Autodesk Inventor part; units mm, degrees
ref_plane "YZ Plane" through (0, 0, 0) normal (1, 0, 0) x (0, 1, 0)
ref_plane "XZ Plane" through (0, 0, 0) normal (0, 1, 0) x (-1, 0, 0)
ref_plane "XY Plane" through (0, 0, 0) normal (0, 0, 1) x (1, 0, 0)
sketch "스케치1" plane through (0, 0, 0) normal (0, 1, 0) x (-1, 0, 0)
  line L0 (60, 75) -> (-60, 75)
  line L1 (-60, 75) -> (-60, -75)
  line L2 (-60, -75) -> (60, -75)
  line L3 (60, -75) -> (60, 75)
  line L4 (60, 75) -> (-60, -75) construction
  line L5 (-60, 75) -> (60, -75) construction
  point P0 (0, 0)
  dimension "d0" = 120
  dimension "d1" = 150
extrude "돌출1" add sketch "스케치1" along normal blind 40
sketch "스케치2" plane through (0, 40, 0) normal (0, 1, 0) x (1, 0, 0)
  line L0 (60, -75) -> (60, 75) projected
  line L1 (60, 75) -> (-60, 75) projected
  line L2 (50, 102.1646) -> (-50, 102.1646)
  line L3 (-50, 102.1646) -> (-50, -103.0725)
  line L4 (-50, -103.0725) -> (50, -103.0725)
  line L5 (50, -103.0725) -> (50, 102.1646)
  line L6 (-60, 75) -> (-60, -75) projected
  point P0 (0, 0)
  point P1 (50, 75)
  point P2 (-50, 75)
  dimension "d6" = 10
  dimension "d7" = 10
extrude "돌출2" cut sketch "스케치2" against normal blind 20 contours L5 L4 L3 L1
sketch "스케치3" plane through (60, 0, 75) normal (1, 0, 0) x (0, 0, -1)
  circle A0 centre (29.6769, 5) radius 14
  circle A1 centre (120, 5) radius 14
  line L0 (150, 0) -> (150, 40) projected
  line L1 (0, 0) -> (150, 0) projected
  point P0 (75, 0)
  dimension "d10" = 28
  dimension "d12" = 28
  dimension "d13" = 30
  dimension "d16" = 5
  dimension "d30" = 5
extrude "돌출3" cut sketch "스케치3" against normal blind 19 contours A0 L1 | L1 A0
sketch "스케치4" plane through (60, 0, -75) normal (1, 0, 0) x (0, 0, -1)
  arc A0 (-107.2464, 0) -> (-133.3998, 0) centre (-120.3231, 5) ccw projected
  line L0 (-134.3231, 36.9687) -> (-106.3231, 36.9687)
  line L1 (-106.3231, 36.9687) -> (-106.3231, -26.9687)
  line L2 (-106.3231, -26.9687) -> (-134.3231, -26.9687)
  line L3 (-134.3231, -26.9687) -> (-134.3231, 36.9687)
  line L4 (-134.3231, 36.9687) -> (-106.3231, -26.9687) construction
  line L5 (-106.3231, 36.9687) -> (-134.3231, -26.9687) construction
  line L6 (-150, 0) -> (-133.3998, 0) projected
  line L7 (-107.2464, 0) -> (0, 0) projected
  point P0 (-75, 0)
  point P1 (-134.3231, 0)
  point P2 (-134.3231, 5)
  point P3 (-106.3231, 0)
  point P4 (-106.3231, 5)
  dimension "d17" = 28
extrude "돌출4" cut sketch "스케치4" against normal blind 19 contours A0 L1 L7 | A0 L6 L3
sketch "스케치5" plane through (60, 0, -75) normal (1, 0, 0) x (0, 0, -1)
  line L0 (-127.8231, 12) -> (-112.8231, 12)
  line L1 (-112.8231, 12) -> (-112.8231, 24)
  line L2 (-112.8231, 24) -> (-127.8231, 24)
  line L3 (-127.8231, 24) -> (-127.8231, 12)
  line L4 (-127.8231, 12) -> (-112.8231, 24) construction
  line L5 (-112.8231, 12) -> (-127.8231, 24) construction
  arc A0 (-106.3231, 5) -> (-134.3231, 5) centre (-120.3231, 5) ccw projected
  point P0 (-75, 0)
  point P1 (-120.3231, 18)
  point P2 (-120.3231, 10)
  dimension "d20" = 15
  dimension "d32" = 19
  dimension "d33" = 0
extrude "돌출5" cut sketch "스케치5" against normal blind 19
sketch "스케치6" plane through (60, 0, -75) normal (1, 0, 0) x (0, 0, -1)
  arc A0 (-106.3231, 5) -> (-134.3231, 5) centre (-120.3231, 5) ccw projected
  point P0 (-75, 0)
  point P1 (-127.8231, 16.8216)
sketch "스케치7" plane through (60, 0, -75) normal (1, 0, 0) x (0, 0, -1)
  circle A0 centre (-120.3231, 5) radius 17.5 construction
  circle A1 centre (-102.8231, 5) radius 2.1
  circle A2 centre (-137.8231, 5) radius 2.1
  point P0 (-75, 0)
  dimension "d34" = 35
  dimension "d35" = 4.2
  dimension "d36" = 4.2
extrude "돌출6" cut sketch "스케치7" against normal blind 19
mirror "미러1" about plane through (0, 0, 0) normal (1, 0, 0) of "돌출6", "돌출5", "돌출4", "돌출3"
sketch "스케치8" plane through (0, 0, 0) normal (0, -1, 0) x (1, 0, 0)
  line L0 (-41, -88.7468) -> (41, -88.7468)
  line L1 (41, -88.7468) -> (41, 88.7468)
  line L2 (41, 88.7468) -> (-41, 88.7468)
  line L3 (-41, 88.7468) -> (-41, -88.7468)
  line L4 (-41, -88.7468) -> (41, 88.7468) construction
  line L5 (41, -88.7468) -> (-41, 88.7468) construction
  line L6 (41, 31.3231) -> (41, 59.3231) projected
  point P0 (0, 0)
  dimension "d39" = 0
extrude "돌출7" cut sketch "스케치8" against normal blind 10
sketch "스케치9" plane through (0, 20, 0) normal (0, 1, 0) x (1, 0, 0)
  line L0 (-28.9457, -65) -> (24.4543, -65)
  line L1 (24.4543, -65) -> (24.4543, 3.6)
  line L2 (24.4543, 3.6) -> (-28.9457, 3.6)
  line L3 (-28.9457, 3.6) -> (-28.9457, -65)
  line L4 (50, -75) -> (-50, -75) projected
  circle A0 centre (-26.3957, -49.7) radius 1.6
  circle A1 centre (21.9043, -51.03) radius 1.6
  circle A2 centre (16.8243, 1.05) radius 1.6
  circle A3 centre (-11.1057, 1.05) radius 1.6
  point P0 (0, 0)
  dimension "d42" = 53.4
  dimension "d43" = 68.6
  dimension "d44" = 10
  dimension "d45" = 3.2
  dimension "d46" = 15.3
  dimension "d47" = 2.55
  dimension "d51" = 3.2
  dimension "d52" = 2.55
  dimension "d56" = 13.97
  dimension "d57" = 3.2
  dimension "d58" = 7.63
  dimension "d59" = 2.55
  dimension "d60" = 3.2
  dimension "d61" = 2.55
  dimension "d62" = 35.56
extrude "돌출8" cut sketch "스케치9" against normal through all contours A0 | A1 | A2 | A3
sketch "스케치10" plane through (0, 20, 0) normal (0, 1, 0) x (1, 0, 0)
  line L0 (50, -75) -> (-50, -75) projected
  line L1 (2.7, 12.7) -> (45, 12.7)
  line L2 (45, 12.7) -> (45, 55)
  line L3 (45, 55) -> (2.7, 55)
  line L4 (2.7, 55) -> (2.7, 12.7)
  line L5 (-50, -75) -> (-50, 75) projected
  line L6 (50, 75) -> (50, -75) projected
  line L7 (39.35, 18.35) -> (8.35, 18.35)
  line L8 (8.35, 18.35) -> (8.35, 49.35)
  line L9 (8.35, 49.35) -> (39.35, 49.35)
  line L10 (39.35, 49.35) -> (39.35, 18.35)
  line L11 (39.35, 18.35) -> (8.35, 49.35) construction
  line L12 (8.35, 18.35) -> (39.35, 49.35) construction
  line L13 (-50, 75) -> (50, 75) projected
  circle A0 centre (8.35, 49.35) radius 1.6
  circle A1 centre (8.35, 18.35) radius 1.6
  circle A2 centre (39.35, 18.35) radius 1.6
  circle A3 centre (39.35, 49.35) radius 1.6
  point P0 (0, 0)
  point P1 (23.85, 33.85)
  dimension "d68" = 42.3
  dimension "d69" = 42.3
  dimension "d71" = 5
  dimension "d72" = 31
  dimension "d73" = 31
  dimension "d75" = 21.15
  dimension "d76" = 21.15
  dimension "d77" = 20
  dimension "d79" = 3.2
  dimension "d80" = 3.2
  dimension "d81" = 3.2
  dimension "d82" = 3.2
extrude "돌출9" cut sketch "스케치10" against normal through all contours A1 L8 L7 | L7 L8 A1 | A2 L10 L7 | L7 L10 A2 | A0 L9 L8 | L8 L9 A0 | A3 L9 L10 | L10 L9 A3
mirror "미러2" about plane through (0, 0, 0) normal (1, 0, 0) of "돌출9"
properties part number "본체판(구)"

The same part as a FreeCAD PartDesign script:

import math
import FreeCAD as App
import Part
import Sketcher
from FreeCAD import Vector
Q = App.Units.Quantity


def add_polygon(sketch, points):
    """Adds a closed chain of lines whose ends are joined by coincident constraints."""
    first, n = sketch.GeometryCount, len(points)
    for a, b in zip(points, points[1:] + points[:1]):
        sketch.addGeometry(Part.LineSegment(App.Vector(*a, 0), App.Vector(*b, 0)), False)
    for i in range(n):
        sketch.addConstraint(Sketcher.Constraint("Coincident", first + i, 2, first + (i + 1) % n, 1))

doc = App.newDocument("Part")
params = doc.addObject("Spreadsheet::Sheet", "Params")
for row, (alias, value) in enumerate([
    ("sketch1_width", "120 mm"),
    ("sketch1_height", "150 mm"),
    ("pad1_length", "40 mm"),
    ("sketch2_width", "100 mm"),
    ("pocket1_length", "20 mm"),
    ("sketch3_diameter", "28 mm"),
    ("pocket2_length", "19 mm"),
    ("sketch4_radius", "14 mm"),
    ("sketch4_width", "5 mm"),
    ("pocket3_length", "19 mm"),
    ("sketch5_height", "15 mm"),
    ("sketch5_width", "12 mm"),
    ("pocket4_length", "19 mm"),
    ("sketch6_diameter", "4.2 mm"),
    ("pocket5_length", "19 mm"),
    ("sketch7_width", "82 mm"),
    ("pocket6_length", "10 mm"),
    ("sketch8_diameter", "3.2 mm"),
    ("sketch9_diameter", "3.2 mm"),
], start=1):
    params.set(f"A{row}", alias)
    params.set(f"B{row}", "=" + value)
    params.setAlias(f"B{row}", alias)

body = doc.addObject("PartDesign::Body", "Body")

# Sketch on XZ plane
sketch1 = body.newObject("Sketcher::SketchObject", "Sketch")
sketch1.AttachmentSupport = (doc.getObject("XZ_Plane"), [""])
sketch1.MapMode = "FlatFace"
add_polygon(sketch1, [(-60, -75), (-60, 75), (60, 75), (60, -75)])  # lines 0-3
sketch1.addConstraint([
    Sketcher.Constraint("Vertical", 0),
    Sketcher.Constraint("Horizontal", 1),
    Sketcher.Constraint("Vertical", 2),
    Sketcher.Constraint("Horizontal", 3),
    Sketcher.Constraint("Symmetric", 0, 2, 2, 2, -1, 1),
    Sketcher.Constraint("DistanceX", 1, 1, 1, 2, Q("120 mm")),
    Sketcher.Constraint("DistanceY", 0, 1, 0, 2, Q("150 mm")),
])
sketch1.setExpression("Constraints[9]", "Params.sketch1_width")
sketch1.setExpression("Constraints[10]", "Params.sketch1_height")
pad1 = body.newObject("PartDesign::Pad", "Pad")
pad1.Profile = sketch1
pad1.setExpression("Length", "Params.pad1_length")
pad1.Reversed = True

# Sketch on XZ plane
sketch2 = body.newObject("Sketcher::SketchObject", "Sketch001")
sketch2.AttachmentSupport = (doc.getObject("XZ_Plane"), [""])
sketch2.MapMode = "FlatFace"
sketch2.AttachmentOffset = App.Placement(Vector(0, 0, -40), App.Rotation())
add_polygon(sketch2, [(50, 103.0725), (50, -75), (-50, -75), (-50, 103.0725)])  # lines 0-3
sketch2.addConstraint([
    Sketcher.Constraint("Vertical", 0),
    Sketcher.Constraint("Horizontal", 1),
    Sketcher.Constraint("Vertical", 2),
    Sketcher.Constraint("Horizontal", 3),
    Sketcher.Constraint("DistanceX", 1, 2, 1, 1, Q("100 mm")),
    Sketcher.Constraint("DistanceX", -1, 1, 0, 2, Q("50 mm")),
    Sketcher.Constraint("DistanceY", 0, 2, -1, 1, Q("75 mm")),
    Sketcher.Constraint("DistanceY", 0, 2, 0, 1, Q("178.0725 mm")),
])
sketch2.setExpression("Constraints[8]", "Params.sketch2_width")
pocket1 = body.newObject("PartDesign::Pocket", "Pocket")
pocket1.Profile = sketch2
pocket1.setExpression("Length", "Params.pocket1_length")
pocket1.Reversed = True

# Sketch on YZ plane
sketch3 = body.newObject("Sketcher::SketchObject", "Sketch002")
sketch3.AttachmentSupport = (doc.getObject("YZ_Plane"), [""])
sketch3.MapMode = "FlatFace"
sketch3.AttachmentOffset = App.Placement(Vector(0, 0, 60), App.Rotation())
sketch3.addGeometry(Part.Circle(Vector(5, 45.3231, 0), Vector(0, 0, 1), 14), False)
sketch3.addConstraint([
    Sketcher.Constraint("Diameter", 0, Q("28 mm")),
    Sketcher.Constraint("DistanceX", -1, 1, 0, 3, Q("5 mm")),
    Sketcher.Constraint("DistanceY", -1, 1, 0, 3, Q("45.323 mm")),
])
sketch3.setExpression("Constraints[0]", "Params.sketch3_diameter")
pocket2 = body.newObject("PartDesign::Pocket", "Pocket001")
pocket2.Profile = sketch3
pocket2.setExpression("Length", "Params.pocket2_length")

# Sketch on YZ plane
sketch4 = body.newObject("Sketcher::SketchObject", "Sketch003")
sketch4.AttachmentSupport = (doc.getObject("YZ_Plane"), [""])
sketch4.MapMode = "FlatFace"
sketch4.AttachmentOffset = App.Placement(Vector(0, 0, 60), App.Rotation())
sketch4.addGeometry([
    Part.ArcOfCircle(Part.Circle(Vector(5, 45.3231, 0), Vector(0, 0, 1), 14.000003), math.radians(-110.924828), math.radians(-90)),  # 0
    Part.LineSegment(Vector(0, 32.2464, 0), Vector(0, 31.3231, 0)),  # 1
    Part.LineSegment(Vector(0, 31.3231, 0), Vector(5, 31.3231, 0)),  # 2
    Part.ArcOfCircle(Part.Circle(Vector(5, 45.3231, 0), Vector(0, 0, 1), 14.000003), math.radians(90), math.radians(110.924828)),  # 3
    Part.LineSegment(Vector(5, 59.3231, 0), Vector(0, 59.3231, 0)),  # 4
    Part.LineSegment(Vector(0, 59.3231, 0), Vector(0, 58.3998, 0)),  # 5
], False)
sketch4.addConstraint([
    Sketcher.Constraint("Coincident", 0, 1, 1, 1),
    Sketcher.Constraint("Coincident", 1, 2, 2, 1),
    Sketcher.Constraint("Tangent", 2, 2, 0, 2),
    Sketcher.Constraint("Tangent", 3, 1, 4, 1),
    Sketcher.Constraint("Coincident", 4, 2, 5, 1),
    Sketcher.Constraint("Coincident", 5, 2, 3, 2),
    Sketcher.Constraint("Vertical", 1),
    Sketcher.Constraint("Horizontal", 2),
    Sketcher.Constraint("Horizontal", 4),
    Sketcher.Constraint("Vertical", 5),
    Sketcher.Constraint("Coincident", 3, 3, 0, 3),
    Sketcher.Constraint("Equal", 0, 3),
    Sketcher.Constraint("PointOnObject", 0, 1, -2),
    Sketcher.Constraint("PointOnObject", 4, 2, -2),
    Sketcher.Constraint("Radius", 0, Q("14 mm")),
    Sketcher.Constraint("DistanceX", 2, 1, 2, 2, Q("5 mm")),
    Sketcher.Constraint("DistanceY", -1, 1, 0, 3, Q("45.323 mm")),
])
sketch4.setExpression("Constraints[14]", "Params.sketch4_radius")
sketch4.setExpression("Constraints[15]", "Params.sketch4_width")
pocket3 = body.newObject("PartDesign::Pocket", "Pocket002")
pocket3.Profile = sketch4
pocket3.setExpression("Length", "Params.pocket3_length")

# Sketch on YZ plane
sketch5 = body.newObject("Sketcher::SketchObject", "Sketch004")
sketch5.AttachmentSupport = (doc.getObject("YZ_Plane"), [""])
sketch5.MapMode = "FlatFace"
sketch5.AttachmentOffset = App.Placement(Vector(0, 0, 60), App.Rotation())
add_polygon(sketch5, [(12, 52.8231), (12, 37.8231), (24, 37.8231), (24, 52.8231)])  # lines 0-3
sketch5.addConstraint([
    Sketcher.Constraint("Vertical", 0),
    Sketcher.Constraint("Horizontal", 1),
    Sketcher.Constraint("Vertical", 2),
    Sketcher.Constraint("Horizontal", 3),
    Sketcher.Constraint("DistanceY", 0, 2, 0, 1, Q("15 mm")),
    Sketcher.Constraint("DistanceX", 1, 1, 1, 2, Q("12 mm")),
    Sketcher.Constraint("DistanceX", -1, 1, 0, 2, Q("12 mm")),
    Sketcher.Constraint("DistanceY", -1, 1, 0, 2, Q("37.823 mm")),
])
sketch5.setExpression("Constraints[8]", "Params.sketch5_height")
sketch5.setExpression("Constraints[9]", "Params.sketch5_width")
pocket4 = body.newObject("PartDesign::Pocket", "Pocket003")
pocket4.Profile = sketch5
pocket4.setExpression("Length", "Params.pocket4_length")

# Sketch on YZ plane
sketch6 = body.newObject("Sketcher::SketchObject", "Sketch005")
sketch6.AttachmentSupport = (doc.getObject("YZ_Plane"), [""])
sketch6.MapMode = "FlatFace"
sketch6.AttachmentOffset = App.Placement(Vector(0, 0, 60), App.Rotation())
sketch6.addGeometry([
    Part.Circle(Vector(5, 27.8231, 0), Vector(0, 0, 1), 2.1),
    Part.Circle(Vector(5, 62.8231, 0), Vector(0, 0, 1), 2.1),
], False)
sketch6.addConstraint([
    Sketcher.Constraint("Equal", 0, 1),
    Sketcher.Constraint("Vertical", 0, 3, 1, 3),
    Sketcher.Constraint("Diameter", 0, Q("4.2 mm")),
    Sketcher.Constraint("DistanceY", 0, 3, 1, 3, Q("35 mm")),
    Sketcher.Constraint("DistanceX", -1, 1, 0, 3, Q("5 mm")),
    Sketcher.Constraint("DistanceY", -1, 1, 0, 3, Q("27.823 mm")),
])
sketch6.setExpression("Constraints[2]", "Params.sketch6_diameter")
pocket5 = body.newObject("PartDesign::Pocket", "Pocket004")
pocket5.Profile = sketch6
pocket5.setExpression("Length", "Params.pocket5_length")
doc.recompute()

mirrored = body.newObject("PartDesign::Mirrored", "Mirrored")
mirrored.Originals = [pocket5, pocket4, pocket3, pocket2]
mirrored.MirrorPlane = (doc.getObject("YZ_Plane"), [""])
body.Tip = mirrored

# Sketch on XZ plane
sketch7 = body.newObject("Sketcher::SketchObject", "Sketch006")
sketch7.AttachmentSupport = (doc.getObject("XZ_Plane"), [""])
sketch7.MapMode = "FlatFace"
add_polygon(sketch7, [(-41, 88.7468), (-41, -88.7468), (41, -88.7468), (41, 88.7468)])  # lines 0-3
sketch7.addConstraint([
    Sketcher.Constraint("Vertical", 0),
    Sketcher.Constraint("Horizontal", 1),
    Sketcher.Constraint("Vertical", 2),
    Sketcher.Constraint("Horizontal", 3),
    Sketcher.Constraint("Symmetric", 0, 2, 2, 2, -1, 1),
    Sketcher.Constraint("DistanceX", 1, 1, 1, 2, Q("82 mm")),
    Sketcher.Constraint("DistanceY", 0, 2, 0, 1, Q("177.4936 mm")),
])
sketch7.setExpression("Constraints[9]", "Params.sketch7_width")
pocket6 = body.newObject("PartDesign::Pocket", "Pocket005")
pocket6.Profile = sketch7
pocket6.setExpression("Length", "Params.pocket6_length")

# Sketch on XZ plane
sketch8 = body.newObject("Sketcher::SketchObject", "Sketch007")
sketch8.AttachmentSupport = (doc.getObject("XZ_Plane"), [""])
sketch8.MapMode = "FlatFace"
sketch8.AttachmentOffset = App.Placement(Vector(0, 0, -20), App.Rotation())
sketch8.addGeometry([
    Part.Circle(Vector(-26.3957, 49.7, 0), Vector(0, 0, 1), 1.6),
    Part.Circle(Vector(21.9043, 51.03, 0), Vector(0, 0, 1), 1.6),
    Part.Circle(Vector(16.8243, -1.05, 0), Vector(0, 0, 1), 1.6),
    Part.Circle(Vector(-11.1057, -1.05, 0), Vector(0, 0, 1), 1.6),
], False)
sketch8.addConstraint([
    Sketcher.Constraint("Equal", 0, 1),
    Sketcher.Constraint("Equal", 1, 2),
    Sketcher.Constraint("Equal", 2, 3),
    Sketcher.Constraint("Horizontal", 2, 3, 3, 3),
    Sketcher.Constraint("Diameter", 0, Q("3.2 mm")),
    Sketcher.Constraint("DistanceY", -1, 1, 0, 3, Q("49.7 mm")),
    Sketcher.Constraint("DistanceX", 0, 3, 1, 3, Q("48.3 mm")),
    Sketcher.Constraint("DistanceY", -1, 1, 1, 3, Q("51.03 mm")),
    Sketcher.Constraint("DistanceY", 2, 3, -1, 1, Q("1.05 mm")),
    Sketcher.Constraint("DistanceX", 2, 3, 1, 3, Q("5.08 mm")),
    Sketcher.Constraint("DistanceX", 3, 3, 2, 3, Q("27.93 mm")),
    Sketcher.Constraint("DistanceX", 0, 3, -1, 1, Q("26.3957 mm")),
])
sketch8.setExpression("Constraints[4]", "Params.sketch8_diameter")
pocket7 = body.newObject("PartDesign::Pocket", "Pocket006")
pocket7.Profile = sketch8
pocket7.Type = "ThroughAll"
pocket7.Reversed = True

# Sketch on XZ plane
sketch9 = body.newObject("Sketcher::SketchObject", "Sketch008")
sketch9.AttachmentSupport = (doc.getObject("XZ_Plane"), [""])
sketch9.MapMode = "FlatFace"
sketch9.AttachmentOffset = App.Placement(Vector(0, 0, -20), App.Rotation())
sketch9.addGeometry([
    Part.Circle(Vector(8.35, -18.35, 0), Vector(0, 0, 1), 1.6),
    Part.Circle(Vector(39.35, -18.35, 0), Vector(0, 0, 1), 1.6),
    Part.Circle(Vector(8.35, -49.35, 0), Vector(0, 0, 1), 1.6),
    Part.Circle(Vector(39.35, -49.35, 0), Vector(0, 0, 1), 1.6),
], False)
sketch9.addConstraint([
    Sketcher.Constraint("Equal", 0, 1),
    Sketcher.Constraint("Equal", 1, 2),
    Sketcher.Constraint("Equal", 2, 3),
    Sketcher.Constraint("Horizontal", 0, 3, 1, 3),
    Sketcher.Constraint("Horizontal", 2, 3, 3, 3),
    Sketcher.Constraint("Vertical", 0, 3, 2, 3),
    Sketcher.Constraint("Vertical", 1, 3, 3, 3),
    Sketcher.Constraint("Diameter", 0, Q("3.2 mm")),
    Sketcher.Constraint("DistanceX", 0, 3, 1, 3, Q("31 mm")),
    Sketcher.Constraint("DistanceY", 2, 3, 0, 3, Q("31 mm")),
    Sketcher.Constraint("DistanceX", -1, 1, 0, 3, Q("8.35 mm")),
    Sketcher.Constraint("DistanceY", 0, 3, -1, 1, Q("18.35 mm")),
])
sketch9.setExpression("Constraints[7]", "Params.sketch9_diameter")
pocket8 = body.newObject("PartDesign::Pocket", "Pocket007")
pocket8.Profile = sketch9
pocket8.Type = "ThroughAll"
pocket8.Reversed = True
doc.recompute()

mirrored2 = body.newObject("PartDesign::Mirrored", "Mirrored001")
mirrored2.Originals = [pocket8]
mirrored2.MirrorPlane = (doc.getObject("YZ_Plane"), [""])
body.Tip = mirrored2

doc.recompute()
